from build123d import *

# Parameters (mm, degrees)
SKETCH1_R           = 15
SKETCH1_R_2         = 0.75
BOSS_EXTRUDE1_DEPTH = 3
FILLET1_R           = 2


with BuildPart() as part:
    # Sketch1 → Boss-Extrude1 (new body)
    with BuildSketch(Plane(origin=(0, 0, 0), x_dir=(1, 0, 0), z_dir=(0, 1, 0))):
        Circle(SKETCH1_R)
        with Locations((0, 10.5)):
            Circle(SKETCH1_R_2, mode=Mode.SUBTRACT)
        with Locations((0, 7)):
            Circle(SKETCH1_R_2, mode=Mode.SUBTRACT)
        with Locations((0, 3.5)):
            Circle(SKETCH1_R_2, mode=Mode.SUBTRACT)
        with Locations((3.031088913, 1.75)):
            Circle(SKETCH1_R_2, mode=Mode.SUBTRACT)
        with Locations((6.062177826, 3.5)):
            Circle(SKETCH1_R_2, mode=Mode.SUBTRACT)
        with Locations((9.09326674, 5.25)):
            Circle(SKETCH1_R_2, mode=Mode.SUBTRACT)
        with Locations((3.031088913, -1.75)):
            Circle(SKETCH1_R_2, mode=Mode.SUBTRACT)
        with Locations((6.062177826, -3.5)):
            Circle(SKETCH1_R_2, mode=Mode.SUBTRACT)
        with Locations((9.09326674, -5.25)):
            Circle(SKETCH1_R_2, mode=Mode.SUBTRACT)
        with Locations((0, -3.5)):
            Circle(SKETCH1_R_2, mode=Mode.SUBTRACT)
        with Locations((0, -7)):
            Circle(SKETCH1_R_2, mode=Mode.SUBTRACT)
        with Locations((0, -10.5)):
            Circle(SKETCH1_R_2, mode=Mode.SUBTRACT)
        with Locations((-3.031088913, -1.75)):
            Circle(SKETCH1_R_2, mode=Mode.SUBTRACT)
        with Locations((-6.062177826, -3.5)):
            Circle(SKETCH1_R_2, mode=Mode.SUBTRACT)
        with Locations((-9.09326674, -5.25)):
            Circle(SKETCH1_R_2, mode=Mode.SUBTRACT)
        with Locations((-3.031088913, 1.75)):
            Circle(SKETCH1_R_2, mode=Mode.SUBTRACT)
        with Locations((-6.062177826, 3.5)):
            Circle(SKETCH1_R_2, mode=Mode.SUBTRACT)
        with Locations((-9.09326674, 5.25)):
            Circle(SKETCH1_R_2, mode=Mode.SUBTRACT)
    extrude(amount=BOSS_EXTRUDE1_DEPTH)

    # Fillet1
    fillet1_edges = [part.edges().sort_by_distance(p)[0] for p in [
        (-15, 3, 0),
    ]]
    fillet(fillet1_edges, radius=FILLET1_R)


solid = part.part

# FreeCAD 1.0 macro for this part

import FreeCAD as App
import Part
import Sketcher


def edges_at(feature, points):
    """Names of the edges that pass closest to the given points."""
    edges = feature.Shape.Edges
    near = lambda p: min(range(len(edges)), key=lambda i: edges[i].distToShape(Part.Vertex(*p))[0])
    return sorted({f"Edge{near(p) + 1}" for p in points})

doc = App.newDocument("Part")
params = doc.addObject("Spreadsheet::Sheet", "Params")
for row, (alias, value) in enumerate([
    ("sketch1_diameter", "30 mm"),
    ("sketch1_diameter2", "1.5 mm"),
    ("pad1_length", "3 mm"),
    ("fillet_radius", "2 mm"),
], start=1):
    params.set(f"A{row}", alias)
    params.set(f"B{row}", "=" + value)
    params.setAlias(f"B{row}", alias)

body = doc.addObject("PartDesign::Body", "Body")

# Sketch on XZ plane
sketch1 = body.newObject("Sketcher::SketchObject", "Sketch")
sketch1.AttachmentSupport = (doc.getObject("XZ_Plane"), [""])
sketch1.MapMode = "FlatFace"
sketch1.addGeometry([
    Part.Circle(App.Vector(0, 0, 0), App.Vector(0, 0, 1), 15),  # 0
    Part.Circle(App.Vector(-9.1, 5.2, 0), App.Vector(0, 0, 1), 0.8),  # 1
    Part.Circle(App.Vector(-6.1, 3.5, 0), App.Vector(0, 0, 1), 0.8),  # 2
    Part.Circle(App.Vector(-3, 1.8, 0), App.Vector(0, 0, 1), 0.8),  # 3
    Part.Circle(App.Vector(0, 10.5, 0), App.Vector(0, 0, 1), 0.8),  # 4
    Part.Circle(App.Vector(0, 7, 0), App.Vector(0, 0, 1), 0.8),  # 5
    Part.Circle(App.Vector(0, 3.5, 0), App.Vector(0, 0, 1), 0.8),  # 6
    Part.Circle(App.Vector(3, 1.8, 0), App.Vector(0, 0, 1), 0.8),  # 7
    Part.Circle(App.Vector(6.1, 3.5, 0), App.Vector(0, 0, 1), 0.8),  # 8
    Part.Circle(App.Vector(9.1, 5.2, 0), App.Vector(0, 0, 1), 0.8),  # 9
    Part.Circle(App.Vector(-9.1, -5.2, 0), App.Vector(0, 0, 1), 0.8),  # 10
    Part.Circle(App.Vector(-6.1, -3.5, 0), App.Vector(0, 0, 1), 0.8),  # 11
    Part.Circle(App.Vector(-3, -1.8, 0), App.Vector(0, 0, 1), 0.8),  # 12
    Part.Circle(App.Vector(3, -1.8, 0), App.Vector(0, 0, 1), 0.8),  # 13
    Part.Circle(App.Vector(0, -3.5, 0), App.Vector(0, 0, 1), 0.8),  # 14
    Part.Circle(App.Vector(6.1, -3.5, 0), App.Vector(0, 0, 1), 0.8),  # 15
    Part.Circle(App.Vector(9.1, -5.2, 0), App.Vector(0, 0, 1), 0.8),  # 16
    Part.Circle(App.Vector(0, -7, 0), App.Vector(0, 0, 1), 0.8),  # 17
    Part.Circle(App.Vector(0, -10.5, 0), App.Vector(0, 0, 1), 0.8),  # 18
], False)
sketch1.addConstraint([
    Sketcher.Constraint("Coincident", 0, 3, -1, 1),
    Sketcher.Constraint("Equal", 1, 2),
    Sketcher.Constraint("Equal", 2, 3),
    Sketcher.Constraint("Equal", 3, 4),
    Sketcher.Constraint("Equal", 4, 5),
    Sketcher.Constraint("Equal", 5, 6),
    Sketcher.Constraint("Equal", 6, 7),
    Sketcher.Constraint("Equal", 7, 8),
    Sketcher.Constraint("Equal", 8, 9),
    Sketcher.Constraint("Equal", 9, 10),
    Sketcher.Constraint("Equal", 10, 11),
    Sketcher.Constraint("Equal", 11, 12),
    Sketcher.Constraint("Equal", 12, 13),
    Sketcher.Constraint("Equal", 13, 14),
    Sketcher.Constraint("Equal", 14, 15),
    Sketcher.Constraint("Equal", 15, 16),
    Sketcher.Constraint("Equal", 16, 17),
    Sketcher.Constraint("Equal", 17, 18),
    Sketcher.Constraint("Symmetric", 9, 3, 10, 3, -1, 1),
    Sketcher.Constraint("Symmetric", 8, 3, 11, 3, -1, 1),
    Sketcher.Constraint("Symmetric", 7, 3, 12, 3, -1, 1),
    Sketcher.Constraint("Symmetric", 3, 3, 13, 3, -1, 1),
    Sketcher.Constraint("Symmetric", 6, 3, 14, 3, -1, 1),
    Sketcher.Constraint("Symmetric", 2, 3, 15, 3, -1, 1),
    Sketcher.Constraint("Symmetric", 1, 3, 16, 3, -1, 1),
    Sketcher.Constraint("Symmetric", 5, 3, 17, 3, -1, 1),
    Sketcher.Constraint("Symmetric", 4, 3, 18, 3, -1, 1),
    Sketcher.Constraint("Symmetric", 3, 3, 7, 3, -2),
    Sketcher.Constraint("Symmetric", 2, 3, 8, 3, -2),
    Sketcher.Constraint("Symmetric", 1, 3, 9, 3, -2),
    Sketcher.Constraint("PointOnObject", 4, 3, -2),
    Sketcher.Constraint("PointOnObject", 5, 3, -2),
    Sketcher.Constraint("PointOnObject", 6, 3, -2),
    Sketcher.Constraint("Horizontal", 2, 3, 6, 3),
    Sketcher.Constraint("Diameter", 0, 30.0),
    Sketcher.Constraint("Diameter", 1, 1.5),
    Sketcher.Constraint("DistanceY", -1, 1, 5, 3, 7.0),
    Sketcher.Constraint("DistanceY", 2, 3, 4, 3, 7.0),
    Sketcher.Constraint("DistanceY", 10, 3, 3, 3, 7.0),
    Sketcher.Constraint("DistanceY", 11, 3, 2, 3, 7.0),
    Sketcher.Constraint("DistanceY", 3, 3, 1, 3, 3.5),
    Sketcher.Constraint("DistanceX", 3, 3, -1, 1, 3.031089),
    Sketcher.Constraint("DistanceX", 1, 3, 2, 3, 3.031089),
    Sketcher.Constraint("DistanceX", 2, 3, 3, 3, 3.031089),
])
sketch1.setExpression("Constraints[34]", "Params.sketch1_diameter")
sketch1.setExpression("Constraints[35]", "Params.sketch1_diameter2")
pad1 = body.newObject("PartDesign::Pad", "Pad")
pad1.Profile = sketch1
pad1.setExpression("Length", "Params.pad1_length")
pad1.Reversed = True
doc.recompute()

fillet = body.newObject("PartDesign::Fillet", "Fillet")
fillet.Base = (pad1, edges_at(pad1, [(-15, 3, 0)]))
fillet.setExpression("Radius", "Params.fillet_radius")

doc.recompute()
